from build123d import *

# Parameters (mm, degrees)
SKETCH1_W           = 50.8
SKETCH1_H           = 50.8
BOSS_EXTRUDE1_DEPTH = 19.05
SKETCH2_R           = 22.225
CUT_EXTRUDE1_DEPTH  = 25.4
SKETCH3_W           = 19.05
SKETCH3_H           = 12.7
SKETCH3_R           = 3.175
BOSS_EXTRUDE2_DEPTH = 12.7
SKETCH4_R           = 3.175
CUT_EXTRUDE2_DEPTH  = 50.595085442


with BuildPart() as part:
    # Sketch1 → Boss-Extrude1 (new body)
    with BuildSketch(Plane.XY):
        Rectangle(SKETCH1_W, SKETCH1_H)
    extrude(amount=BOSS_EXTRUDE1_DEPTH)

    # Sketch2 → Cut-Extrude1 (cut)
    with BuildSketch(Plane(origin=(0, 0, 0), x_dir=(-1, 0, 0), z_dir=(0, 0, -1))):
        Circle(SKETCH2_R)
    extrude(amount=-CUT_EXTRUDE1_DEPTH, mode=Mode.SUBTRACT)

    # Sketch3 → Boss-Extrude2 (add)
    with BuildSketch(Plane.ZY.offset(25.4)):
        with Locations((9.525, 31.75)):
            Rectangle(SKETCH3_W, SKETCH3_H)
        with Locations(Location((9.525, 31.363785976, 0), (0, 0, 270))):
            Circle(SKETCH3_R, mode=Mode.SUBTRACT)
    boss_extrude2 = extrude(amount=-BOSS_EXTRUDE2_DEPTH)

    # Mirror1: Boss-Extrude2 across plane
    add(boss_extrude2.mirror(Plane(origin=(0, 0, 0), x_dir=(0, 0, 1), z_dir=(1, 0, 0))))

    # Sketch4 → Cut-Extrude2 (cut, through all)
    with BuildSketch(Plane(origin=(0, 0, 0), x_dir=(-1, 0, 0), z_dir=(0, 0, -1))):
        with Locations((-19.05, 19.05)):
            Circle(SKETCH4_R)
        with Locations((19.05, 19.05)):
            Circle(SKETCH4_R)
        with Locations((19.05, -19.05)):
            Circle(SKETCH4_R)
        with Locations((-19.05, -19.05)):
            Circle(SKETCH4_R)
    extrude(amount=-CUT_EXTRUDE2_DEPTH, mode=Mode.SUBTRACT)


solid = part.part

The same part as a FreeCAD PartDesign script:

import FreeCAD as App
import Part
import Sketcher

V = App.Vector
Q = App.Units.Quantity

doc = App.newDocument("Part")
params = doc.addObject("Spreadsheet::Sheet", "Params")
for row, (alias, value) in enumerate([
    ("sketch1_width", "2 in"),
    ("pad1_length", "0.75 in"),
    ("sketch2_diameter", "1.75 in"),
    ("pocket1_length", "1 in"),
    ("sketch3_diameter", "0.25 in"),
    ("sketch3_width", "0.5 in"),
    ("sketch3_height", "0.75 in"),
    ("pad2_length", "0.5 in"),
    ("sketch4_diameter", "0.25 in"),
], start=1):
    params.set(f"A{row}", alias)
    params.set(f"B{row}", "=" + value)
    params.setAlias(f"B{row}", alias)

body = doc.addObject("PartDesign::Body", "Body")

# Sketch on XY plane
sketch1 = doc.addObject("Sketcher::SketchObject", "Sketch")
body.addObject(sketch1)
sketch1.AttachmentSupport = (doc.XY_Plane, [""])
sketch1.MapMode = "FlatFace"
sketch1.addGeometry(Part.LineSegment(V(-25, 25, 0), V(-25, -25, 0)), False)
sketch1.addGeometry(Part.LineSegment(V(-25, -25, 0), V(25, -25, 0)), False)
sketch1.addGeometry(Part.LineSegment(V(25, -25, 0), V(25, 25, 0)), False)
sketch1.addGeometry(Part.LineSegment(V(25, 25, 0), V(-25, 25, 0)), False)
sketch1.addConstraint(Sketcher.Constraint("Coincident", 0, 2, 1, 1))
sketch1.addConstraint(Sketcher.Constraint("Coincident", 1, 2, 2, 1))
sketch1.addConstraint(Sketcher.Constraint("Coincident", 2, 2, 3, 1))
sketch1.addConstraint(Sketcher.Constraint("Coincident", 3, 2, 0, 1))
sketch1.addConstraint(Sketcher.Constraint("Vertical", 0))
sketch1.addConstraint(Sketcher.Constraint("Horizontal", 1))
sketch1.addConstraint(Sketcher.Constraint("Vertical", 2))
sketch1.addConstraint(Sketcher.Constraint("Horizontal", 3))
sketch1.addConstraint(Sketcher.Constraint("Symmetric", 0, 2, 2, 2, -1, 1))
sketch1.addConstraint(Sketcher.Constraint("Equal", 3, 0))
sketch1.addConstraint(Sketcher.Constraint("DistanceX", 1, 1, 1, 2, Q("2 in")))
sketch1.setExpression("Constraints[10]", "Params.sketch1_width")
pad1 = doc.addObject("PartDesign::Pad", "Pad")
body.addObject(pad1)
pad1.Profile = sketch1
pad1.setExpression("Length", "Params.pad1_length")

# Sketch on XY plane
sketch2 = doc.addObject("Sketcher::SketchObject", "Sketch001")
body.addObject(sketch2)
sketch2.AttachmentSupport = (doc.XY_Plane, [""])
sketch2.MapMode = "FlatFace"
sketch2.addGeometry(Part.Circle(V(0, 0, 0), V(0, 0, 1), 22), False)
sketch2.addConstraint(Sketcher.Constraint("Coincident", 0, 3, -1, 1))
sketch2.addConstraint(Sketcher.Constraint("Diameter", 0, Q("1.75 in")))
sketch2.setExpression("Constraints[1]", "Params.sketch2_diameter")
pocket1 = doc.addObject("PartDesign::Pocket", "Pocket")
body.addObject(pocket1)
pocket1.Profile = sketch2
pocket1.setExpression("Length", "Params.pocket1_length")
pocket1.Reversed = True

# Sketch on YZ plane
sketch3 = doc.addObject("Sketcher::SketchObject", "Sketch002")
body.addObject(sketch3)
sketch3.AttachmentSupport = (doc.YZ_Plane, [""])
sketch3.MapMode = "FlatFace"
sketch3.AttachmentOffset = App.Placement(V(0, 0, -1 * 25.4), App.Rotation())
sketch3.addGeometry(Part.LineSegment(V(38.1, 0, 0), V(25.4, 0, 0)), False)
sketch3.addGeometry(Part.LineSegment(V(25.4, 0, 0), V(25.4, 19.1, 0)), False)
sketch3.addGeometry(Part.LineSegment(V(25.4, 19.1, 0), V(38.1, 19.1, 0)), False)
sketch3.addGeometry(Part.LineSegment(V(38.1, 19.1, 0), V(38.1, 0, 0)), False)
sketch3.addGeometry(Part.Circle(V(31.4, 9.5, 0), V(0, 0, 1), 3.2), False)
sketch3.addConstraint(Sketcher.Constraint("Coincident", 0, 2, 1, 1))
sketch3.addConstraint(Sketcher.Constraint("Coincident", 1, 2, 2, 1))
sketch3.addConstraint(Sketcher.Constraint("Coincident", 2, 2, 3, 1))
sketch3.addConstraint(Sketcher.Constraint("Coincident", 3, 2, 0, 1))
sketch3.addConstraint(Sketcher.Constraint("Horizontal", 0))
sketch3.addConstraint(Sketcher.Constraint("Vertical", 1))
sketch3.addConstraint(Sketcher.Constraint("Horizontal", 2))
sketch3.addConstraint(Sketcher.Constraint("Vertical", 3))
sketch3.addConstraint(Sketcher.Constraint("PointOnObject", 0, 2, -1))
sketch3.addConstraint(Sketcher.Constraint("Diameter", 4, Q("0.25 in")))
sketch3.addConstraint(Sketcher.Constraint("DistanceX", 0, 2, 0, 1, Q("0.5 in")))
sketch3.addConstraint(Sketcher.Constraint("DistanceX", -1, 1, 0, 2, Q("1 in")))
sketch3.addConstraint(Sketcher.Constraint("DistanceY", 1, 1, 1, 2, Q("0.75 in")))
sketch3.addConstraint(Sketcher.Constraint("DistanceY", -1, 1, 4, 3, Q("0.375 in")))
sketch3.addConstraint(Sketcher.Constraint("DistanceX", -1, 1, 4, 3, 31.363786))
sketch3.setExpression("Constraints[9]", "Params.sketch3_diameter")
sketch3.setExpression("Constraints[10]", "Params.sketch3_width")
sketch3.setExpression("Constraints[12]", "Params.sketch3_height")
pad2 = doc.addObject("PartDesign::Pad", "Pad001")
body.addObject(pad2)
pad2.Profile = sketch3
pad2.setExpression("Length", "Params.pad2_length")
doc.recompute()

mirrored = doc.addObject("PartDesign::Mirrored", "Mirrored")
body.addObject(mirrored)
mirrored.Originals = [pad2]
mirrored.MirrorPlane = (doc.YZ_Plane, [""])
body.Tip = mirrored

# Sketch on XY plane
sketch4 = doc.addObject("Sketcher::SketchObject", "Sketch003")
body.addObject(sketch4)
sketch4.AttachmentSupport = (doc.XY_Plane, [""])
sketch4.MapMode = "FlatFace"
sketch4.addGeometry(Part.Circle(V(19.1, 19.1, 0), V(0, 0, 1), 3.2), False)
sketch4.addGeometry(Part.Circle(V(-19.1, 19.1, 0), V(0, 0, 1), 3.2), False)
sketch4.addGeometry(Part.Circle(V(-19.1, -19.1, 0), V(0, 0, 1), 3.2), False)
sketch4.addGeometry(Part.Circle(V(19.1, -19.1, 0), V(0, 0, 1), 3.2), False)
sketch4.addConstraint(Sketcher.Constraint("Equal", 0, 1))
sketch4.addConstraint(Sketcher.Constraint("Equal", 1, 2))
sketch4.addConstraint(Sketcher.Constraint("Equal", 2, 3))
sketch4.addConstraint(Sketcher.Constraint("Symmetric", 0, 3, 2, 3, -1, 1))
sketch4.addConstraint(Sketcher.Constraint("Symmetric", 1, 3, 3, 3, -1, 1))
sketch4.addConstraint(Sketcher.Constraint("Symmetric", 0, 3, 1, 3, -2))
sketch4.addConstraint(Sketcher.Constraint("Diameter", 0, Q("0.25 in")))
sketch4.addConstraint(Sketcher.Constraint("DistanceX", 1, 3, 0, 3, Q("1.5 in")))
sketch4.addConstraint(Sketcher.Constraint("DistanceY", 2, 3, 1, 3, Q("1.5 in")))
sketch4.setExpression("Constraints[6]", "Params.sketch4_diameter")
pocket2 = doc.addObject("PartDesign::Pocket", "Pocket001")
body.addObject(pocket2)
pocket2.Profile = sketch4
pocket2.Type = "ThroughAll"
pocket2.Reversed = True

doc.recompute()
